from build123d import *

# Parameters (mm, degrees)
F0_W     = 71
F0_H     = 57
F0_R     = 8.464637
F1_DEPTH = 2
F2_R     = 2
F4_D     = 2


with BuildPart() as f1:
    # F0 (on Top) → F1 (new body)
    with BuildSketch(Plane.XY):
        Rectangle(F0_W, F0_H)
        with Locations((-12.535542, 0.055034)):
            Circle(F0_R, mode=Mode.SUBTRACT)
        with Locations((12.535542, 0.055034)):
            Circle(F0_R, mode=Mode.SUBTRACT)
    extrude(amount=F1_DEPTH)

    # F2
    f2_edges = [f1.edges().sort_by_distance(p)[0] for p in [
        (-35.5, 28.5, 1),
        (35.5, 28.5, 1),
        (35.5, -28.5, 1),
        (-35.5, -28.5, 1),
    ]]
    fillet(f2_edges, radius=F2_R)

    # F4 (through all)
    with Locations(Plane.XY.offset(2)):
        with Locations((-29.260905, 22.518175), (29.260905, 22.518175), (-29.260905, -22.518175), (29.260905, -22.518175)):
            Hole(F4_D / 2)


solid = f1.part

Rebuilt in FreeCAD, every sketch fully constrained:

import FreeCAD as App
import Part
import Sketcher

V = App.Vector


def edges_at(feature, points):
    """Names of the edges that pass closest to the given points."""
    edges = feature.Shape.Edges
    near = lambda p: min(range(len(edges)), key=lambda i: edges[i].distToShape(Part.Vertex(*p))[0])
    return sorted({f"Edge{near(p) + 1}" for p in points})


def add_polygon(sketch, points):
    """Adds a closed chain of lines whose ends are joined by coincident constraints."""
    first, n = sketch.GeometryCount, len(points)
    for a, b in zip(points, points[1:] + points[:1]):
        sketch.addGeometry(Part.LineSegment(App.Vector(*a, 0), App.Vector(*b, 0)), False)
    for i in range(n):
        sketch.addConstraint(Sketcher.Constraint("Coincident", first + i, 2, first + (i + 1) % n, 1))

doc = App.newDocument("Part")
body = doc.addObject("PartDesign::Body", "Body")

# Sketch on XY plane
sketch1 = doc.addObject("Sketcher::SketchObject", "Sketch")
body.addObject(sketch1)
sketch1.AttachmentSupport = (doc.XY_Plane, [""])
sketch1.MapMode = "FlatFace"
add_polygon(sketch1, [(-36, 28), (-36, -28), (36, -28), (36, 28)])  # lines 0-3
sketch1.addGeometry(Part.Circle(V(-13, 0, 0), V(0, 0, 1), 8), False)  # 4
sketch1.addGeometry(Part.Circle(V(13, 0, 0), V(0, 0, 1), 8), False)  # 5
sketch1.addConstraint([
    Sketcher.Constraint("Vertical", 0),
    Sketcher.Constraint("Horizontal", 1),
    Sketcher.Constraint("Vertical", 2),
    Sketcher.Constraint("Horizontal", 3),
    Sketcher.Constraint("Equal", 4, 5),
    Sketcher.Constraint("Symmetric", 0, 2, 2, 2, -1, 1),
    Sketcher.Constraint("Symmetric", 4, 3, 5, 3, -2),
    Sketcher.Constraint("DistanceX", 1, 1, 1, 2, 71.0),
    Sketcher.Constraint("DistanceY", 0, 2, 0, 1, 57.0),
    Sketcher.Constraint("Diameter", 4, 16.929274),
    Sketcher.Constraint("DistanceX", 0, 2, 4, 3, 22.964458),
    Sketcher.Constraint("DistanceY", -1, 1, 4, 3, 0.055034),
])
pad1 = doc.addObject("PartDesign::Pad", "Pad")
body.addObject(pad1)
pad1.Profile = sketch1
pad1.Length = 2
doc.recompute()

fillet = doc.addObject("PartDesign::Fillet", "Fillet")
body.addObject(fillet)
fillet.Base = (pad1, edges_at(pad1, [
    (-35.5, 28.5, 1),
    (35.5, 28.5, 1),
    (35.5, -28.5, 1),
    (-35.5, -28.5, 1),
]))
fillet.Radius = 2

# Sketch on XY plane
sketch2 = doc.addObject("Sketcher::SketchObject", "Sketch001")
body.addObject(sketch2)
sketch2.AttachmentSupport = (doc.XY_Plane, [""])
sketch2.MapMode = "FlatFace"
sketch2.AttachmentOffset = App.Placement(V(0, 0, 2), App.Rotation())
sketch2.addGeometry([
    Part.Circle(V(-29.3, 22.5, 0), V(0, 0, 1), 1),
    Part.Circle(V(29.3, 22.5, 0), V(0, 0, 1), 1),
    Part.Circle(V(-29.3, -22.5, 0), V(0, 0, 1), 1),
    Part.Circle(V(29.3, -22.5, 0), V(0, 0, 1), 1),
], False)
sketch2.addConstraint([
    Sketcher.Constraint("Equal", 0, 1),
    Sketcher.Constraint("Equal", 1, 2),
    Sketcher.Constraint("Equal", 2, 3),
    Sketcher.Constraint("Symmetric", 1, 3, 2, 3, -1, 1),
    Sketcher.Constraint("Symmetric", 0, 3, 3, 3, -1, 1),
    Sketcher.Constraint("Symmetric", 0, 3, 1, 3, -2),
    Sketcher.Constraint("Diameter", 0, 2.0),
    Sketcher.Constraint("DistanceX", 0, 3, 1, 3, 58.52181),
    Sketcher.Constraint("DistanceY", 2, 3, 0, 3, 45.03635),
])
doc.recompute()
hole = doc.addObject("PartDesign::Hole", "Hole")
body.addObject(hole)
hole.Profile = sketch2
hole.ThreadType = "None"
hole.Diameter = 2
hole.DepthType = "ThroughAll"

doc.recompute()
